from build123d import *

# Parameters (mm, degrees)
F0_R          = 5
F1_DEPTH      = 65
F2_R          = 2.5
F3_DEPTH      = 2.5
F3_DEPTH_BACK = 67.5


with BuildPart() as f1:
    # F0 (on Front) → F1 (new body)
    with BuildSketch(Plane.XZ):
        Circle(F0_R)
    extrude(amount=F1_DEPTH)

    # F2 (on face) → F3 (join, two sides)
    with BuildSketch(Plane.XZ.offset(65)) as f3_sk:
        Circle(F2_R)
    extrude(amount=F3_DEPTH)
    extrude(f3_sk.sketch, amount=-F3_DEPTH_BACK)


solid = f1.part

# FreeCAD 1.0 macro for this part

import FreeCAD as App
import Part
import Sketcher
from FreeCAD import Vector
Q = App.Units.Quantity

doc = App.newDocument("Part")
params = doc.addObject("Spreadsheet::Sheet", "Params")
for row, (alias, value) in enumerate([
    ("sketch1_diameter", "10 mm"),
    ("pad1_length", "65 mm"),
    ("sketch2_diameter", "5 mm"),
    ("pad2_length", "2.5 mm"),
    ("pad2_length2", "67.5 mm"),
], start=1):
    params.set(f"A{row}", alias)
    params.set(f"B{row}", "=" + value)
    params.setAlias(f"B{row}", alias)

body = doc.addObject("PartDesign::Body", "Body")

# Sketch on XZ plane
sketch1 = body.newObject("Sketcher::SketchObject", "Sketch")
sketch1.AttachmentSupport = (doc.getObject("XZ_Plane"), [""])
sketch1.MapMode = "FlatFace"
sketch1.addGeometry(Part.Circle(Vector(0, 0, 0), Vector(0, 0, 1), 5), False)
sketch1.addConstraint(Sketcher.Constraint("Coincident", 0, 3, -1, 1))
sketch1.addConstraint(Sketcher.Constraint("Diameter", 0, Q("10 mm")))
sketch1.setExpression("Constraints[1]", "Params.sketch1_diameter")
pad1 = body.newObject("PartDesign::Pad", "Pad")
pad1.Profile = sketch1
pad1.setExpression("Length", "Params.pad1_length")

# Sketch on XZ plane
sketch2 = body.newObject("Sketcher::SketchObject", "Sketch001")
sketch2.AttachmentSupport = (doc.getObject("XZ_Plane"), [""])
sketch2.MapMode = "FlatFace"
sketch2.AttachmentOffset = App.Placement(Vector(0, 0, 65), App.Rotation())
sketch2.addGeometry(Part.Circle(Vector(0, 0, 0), Vector(0, 0, 1), 2.5), False)
sketch2.addConstraint(Sketcher.Constraint("Coincident", 0, 3, -1, 1))
sketch2.addConstraint(Sketcher.Constraint("Diameter", 0, Q("5 mm")))
sketch2.setExpression("Constraints[1]", "Params.sketch2_diameter")
pad2 = body.newObject("PartDesign::Pad", "Pad001")
pad2.Profile = sketch2
pad2.Type = "TwoLengths"
pad2.setExpression("Length", "Params.pad2_length")
pad2.setExpression("Length2", "Params.pad2_length2")

doc.recompute()
